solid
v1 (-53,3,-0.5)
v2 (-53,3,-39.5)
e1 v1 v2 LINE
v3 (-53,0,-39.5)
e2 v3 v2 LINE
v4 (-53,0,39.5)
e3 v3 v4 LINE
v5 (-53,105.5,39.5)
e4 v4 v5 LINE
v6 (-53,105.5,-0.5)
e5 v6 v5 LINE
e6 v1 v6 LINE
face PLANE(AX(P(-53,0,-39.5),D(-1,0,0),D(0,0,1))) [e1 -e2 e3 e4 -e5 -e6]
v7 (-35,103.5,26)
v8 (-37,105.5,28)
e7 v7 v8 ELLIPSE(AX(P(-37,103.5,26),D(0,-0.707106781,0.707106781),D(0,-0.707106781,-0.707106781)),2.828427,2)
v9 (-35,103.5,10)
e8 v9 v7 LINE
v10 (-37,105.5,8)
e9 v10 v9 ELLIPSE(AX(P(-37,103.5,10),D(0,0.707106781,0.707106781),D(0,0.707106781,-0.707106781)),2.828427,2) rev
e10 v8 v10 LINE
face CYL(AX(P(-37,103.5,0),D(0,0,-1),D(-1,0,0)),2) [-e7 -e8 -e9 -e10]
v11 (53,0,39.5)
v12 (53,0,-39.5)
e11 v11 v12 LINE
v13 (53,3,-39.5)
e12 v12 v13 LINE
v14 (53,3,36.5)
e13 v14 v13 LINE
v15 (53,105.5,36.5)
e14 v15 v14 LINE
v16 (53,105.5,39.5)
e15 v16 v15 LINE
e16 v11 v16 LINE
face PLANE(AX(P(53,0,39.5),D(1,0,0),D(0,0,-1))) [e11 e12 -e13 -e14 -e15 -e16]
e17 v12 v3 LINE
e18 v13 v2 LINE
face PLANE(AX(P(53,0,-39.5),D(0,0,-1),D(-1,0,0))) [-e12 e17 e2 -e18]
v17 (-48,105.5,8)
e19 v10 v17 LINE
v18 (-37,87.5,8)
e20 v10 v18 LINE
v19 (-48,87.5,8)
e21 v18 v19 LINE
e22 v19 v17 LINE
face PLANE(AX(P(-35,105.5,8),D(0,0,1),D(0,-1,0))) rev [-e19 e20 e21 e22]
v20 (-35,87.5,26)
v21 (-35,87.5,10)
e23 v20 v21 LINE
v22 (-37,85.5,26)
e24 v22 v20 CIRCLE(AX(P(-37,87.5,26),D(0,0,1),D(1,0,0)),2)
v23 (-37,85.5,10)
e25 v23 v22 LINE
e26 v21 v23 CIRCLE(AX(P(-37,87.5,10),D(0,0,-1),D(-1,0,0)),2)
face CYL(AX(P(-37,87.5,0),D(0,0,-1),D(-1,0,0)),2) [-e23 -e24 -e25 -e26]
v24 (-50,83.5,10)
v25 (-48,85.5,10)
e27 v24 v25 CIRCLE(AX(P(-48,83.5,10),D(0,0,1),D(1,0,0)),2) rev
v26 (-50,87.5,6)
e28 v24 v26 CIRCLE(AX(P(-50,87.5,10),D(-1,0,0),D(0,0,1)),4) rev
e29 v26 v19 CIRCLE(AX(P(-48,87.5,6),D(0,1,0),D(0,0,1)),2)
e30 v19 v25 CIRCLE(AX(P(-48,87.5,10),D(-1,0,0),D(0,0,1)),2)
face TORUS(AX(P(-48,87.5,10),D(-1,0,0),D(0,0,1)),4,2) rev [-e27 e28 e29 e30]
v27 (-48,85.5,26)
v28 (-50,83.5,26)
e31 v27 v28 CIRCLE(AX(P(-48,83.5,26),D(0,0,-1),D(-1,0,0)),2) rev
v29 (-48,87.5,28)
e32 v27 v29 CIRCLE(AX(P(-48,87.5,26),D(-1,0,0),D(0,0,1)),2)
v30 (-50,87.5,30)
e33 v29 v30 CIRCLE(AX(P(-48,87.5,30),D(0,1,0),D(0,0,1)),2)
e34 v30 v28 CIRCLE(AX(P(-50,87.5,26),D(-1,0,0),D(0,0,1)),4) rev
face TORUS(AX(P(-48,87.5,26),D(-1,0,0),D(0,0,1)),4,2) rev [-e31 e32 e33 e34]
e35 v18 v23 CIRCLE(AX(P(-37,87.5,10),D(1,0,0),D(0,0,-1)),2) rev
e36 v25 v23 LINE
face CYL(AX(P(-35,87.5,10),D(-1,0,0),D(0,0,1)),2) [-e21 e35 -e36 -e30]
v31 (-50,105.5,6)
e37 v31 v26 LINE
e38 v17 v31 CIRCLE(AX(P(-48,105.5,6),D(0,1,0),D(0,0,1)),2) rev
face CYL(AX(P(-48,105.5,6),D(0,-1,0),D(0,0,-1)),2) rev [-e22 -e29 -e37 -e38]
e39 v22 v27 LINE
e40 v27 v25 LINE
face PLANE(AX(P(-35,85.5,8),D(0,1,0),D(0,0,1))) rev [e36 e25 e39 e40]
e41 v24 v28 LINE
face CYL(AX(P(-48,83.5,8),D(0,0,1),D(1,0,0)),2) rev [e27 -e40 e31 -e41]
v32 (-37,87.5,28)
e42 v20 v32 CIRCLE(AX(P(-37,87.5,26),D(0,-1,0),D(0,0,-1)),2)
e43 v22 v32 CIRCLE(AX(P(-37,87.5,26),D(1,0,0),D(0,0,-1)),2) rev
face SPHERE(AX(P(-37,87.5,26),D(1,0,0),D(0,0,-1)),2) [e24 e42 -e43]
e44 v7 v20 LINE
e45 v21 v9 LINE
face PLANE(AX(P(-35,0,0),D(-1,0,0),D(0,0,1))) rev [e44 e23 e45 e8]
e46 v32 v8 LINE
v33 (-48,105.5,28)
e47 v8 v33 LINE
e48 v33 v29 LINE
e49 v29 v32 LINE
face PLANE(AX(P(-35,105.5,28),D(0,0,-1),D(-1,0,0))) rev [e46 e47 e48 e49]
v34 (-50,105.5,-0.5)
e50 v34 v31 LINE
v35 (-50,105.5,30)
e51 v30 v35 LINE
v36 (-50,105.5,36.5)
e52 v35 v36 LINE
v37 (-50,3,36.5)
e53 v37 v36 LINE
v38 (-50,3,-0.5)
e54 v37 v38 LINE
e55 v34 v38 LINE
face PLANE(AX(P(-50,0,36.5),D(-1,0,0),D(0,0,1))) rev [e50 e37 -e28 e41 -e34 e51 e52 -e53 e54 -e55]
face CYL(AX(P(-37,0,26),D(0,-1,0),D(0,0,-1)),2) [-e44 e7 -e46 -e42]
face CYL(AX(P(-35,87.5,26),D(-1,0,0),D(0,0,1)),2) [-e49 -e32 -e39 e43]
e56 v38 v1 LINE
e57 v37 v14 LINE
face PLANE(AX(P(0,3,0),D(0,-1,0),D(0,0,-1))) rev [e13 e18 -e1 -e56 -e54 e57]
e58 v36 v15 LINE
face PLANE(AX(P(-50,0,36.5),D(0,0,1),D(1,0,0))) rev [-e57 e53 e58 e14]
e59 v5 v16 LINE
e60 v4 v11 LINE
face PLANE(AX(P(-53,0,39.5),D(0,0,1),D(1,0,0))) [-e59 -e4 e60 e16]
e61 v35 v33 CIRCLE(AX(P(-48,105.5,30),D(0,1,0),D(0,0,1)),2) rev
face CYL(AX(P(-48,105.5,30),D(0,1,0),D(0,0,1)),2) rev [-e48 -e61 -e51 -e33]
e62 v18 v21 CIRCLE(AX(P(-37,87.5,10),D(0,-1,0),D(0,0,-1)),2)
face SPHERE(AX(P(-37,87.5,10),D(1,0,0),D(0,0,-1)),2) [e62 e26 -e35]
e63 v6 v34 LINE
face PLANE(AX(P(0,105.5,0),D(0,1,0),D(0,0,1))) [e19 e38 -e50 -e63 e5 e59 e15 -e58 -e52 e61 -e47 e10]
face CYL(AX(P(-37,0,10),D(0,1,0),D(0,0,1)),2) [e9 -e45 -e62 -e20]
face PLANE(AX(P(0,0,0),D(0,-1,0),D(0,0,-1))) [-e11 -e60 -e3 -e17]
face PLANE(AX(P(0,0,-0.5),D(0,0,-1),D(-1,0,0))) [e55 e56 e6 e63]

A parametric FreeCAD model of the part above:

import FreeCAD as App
import Part
import Sketcher
from FreeCAD import Vector
Q = App.Units.Quantity


def edges_at(feature, points):
    """Names of the edges that pass closest to the given points."""
    edges = feature.Shape.Edges
    near = lambda p: min(range(len(edges)), key=lambda i: edges[i].distToShape(Part.Vertex(*p))[0])
    return sorted({f"Edge{near(p) + 1}" for p in points})

doc = App.newDocument("Part")
body = doc.addObject("PartDesign::Body", "Body")

sketch1 = body.newObject("Sketcher::SketchObject", "Sketch")
sketch1.AttachmentSupport = (doc.getObject("XZ_Plane"), [""])
sketch1.MapMode = "FlatFace"
sketch1.addGeometry(Part.LineSegment(Vector(-50, -36, 0), Vector(-50, 36, 0)), False)
sketch1.addGeometry(Part.LineSegment(Vector(-50, 36, 0), Vector(50, 36, 0)), False)
sketch1.addGeometry(Part.LineSegment(Vector(50, 36, 0), Vector(50, -36, 0)), False)
sketch1.addGeometry(Part.LineSegment(Vector(50, -36, 0), Vector(-50, -36, 0)), False)
sketch1.addConstraint(Sketcher.Constraint("Coincident", 0, 2, 1, 1))
sketch1.addConstraint(Sketcher.Constraint("Coincident", 1, 2, 2, 1))
sketch1.addConstraint(Sketcher.Constraint("Coincident", 2, 2, 3, 1))
sketch1.addConstraint(Sketcher.Constraint("Coincident", 3, 2, 0, 1))
sketch1.addConstraint(Sketcher.Constraint("Vertical", 0))
sketch1.addConstraint(Sketcher.Constraint("Horizontal", 1))
sketch1.addConstraint(Sketcher.Constraint("Vertical", 2))
sketch1.addConstraint(Sketcher.Constraint("Horizontal", 3))
sketch1.addConstraint(Sketcher.Constraint("Symmetric", 0, 2, 2, 2, -1, 1))
sketch1.addConstraint(Sketcher.Constraint("DistanceX", 1, 1, 1, 2, Q("100 mm")))
sketch1.addConstraint(Sketcher.Constraint("DistanceY", 0, 1, 0, 2, Q("73 mm")))
pad1 = body.newObject("PartDesign::Pad", "Pad")
pad1.Profile = sketch1
pad1.Length = 3
pad1.Reversed = True

sketch2 = body.newObject("Sketcher::SketchObject", "Sketch001")
sketch2.AttachmentSupport = (doc.getObject("XZ_Plane"), [""])
sketch2.MapMode = "FlatFace"
sketch2.AttachmentOffset = App.Placement(Vector(0, 0, -3), App.Rotation())
sketch2.addGeometry(Part.LineSegment(Vector(-53, -40, 0), Vector(-53, 40, 0)), False)
sketch2.addGeometry(Part.LineSegment(Vector(-53, 40, 0), Vector(53, 40, 0)), False)
sketch2.addGeometry(Part.LineSegment(Vector(53, 40, 0), Vector(53, -40, 0)), False)
sketch2.addGeometry(Part.LineSegment(Vector(53, -40, 0), Vector(-53, -40, 0)), False)
sketch2.addGeometry(Part.LineSegment(Vector(50, 36, 0), Vector(-50, 36, 0)), False)
sketch2.addGeometry(Part.LineSegment(Vector(-50, 36, 0), Vector(-50, -36, 0)), False)
sketch2.addGeometry(Part.LineSegment(Vector(-50, -36, 0), Vector(50, -36, 0)), False)
sketch2.addGeometry(Part.LineSegment(Vector(50, -36, 0), Vector(50, 36, 0)), False)
sketch2.addConstraint(Sketcher.Constraint("Coincident", 0, 2, 1, 1))
sketch2.addConstraint(Sketcher.Constraint("Coincident", 1, 2, 2, 1))
sketch2.addConstraint(Sketcher.Constraint("Coincident", 2, 2, 3, 1))
sketch2.addConstraint(Sketcher.Constraint("Coincident", 3, 2, 0, 1))
sketch2.addConstraint(Sketcher.Constraint("Coincident", 4, 2, 5, 1))
sketch2.addConstraint(Sketcher.Constraint("Coincident", 5, 2, 6, 1))
sketch2.addConstraint(Sketcher.Constraint("Coincident", 6, 2, 7, 1))
sketch2.addConstraint(Sketcher.Constraint("Coincident", 7, 2, 4, 1))
sketch2.addConstraint(Sketcher.Constraint("Vertical", 0))
sketch2.addConstraint(Sketcher.Constraint("Horizontal", 1))
sketch2.addConstraint(Sketcher.Constraint("Vertical", 2))
sketch2.addConstraint(Sketcher.Constraint("Horizontal", 3))
sketch2.addConstraint(Sketcher.Constraint("Horizontal", 4))
sketch2.addConstraint(Sketcher.Constraint("Vertical", 5))
sketch2.addConstraint(Sketcher.Constraint("Horizontal", 6))
sketch2.addConstraint(Sketcher.Constraint("Vertical", 7))
sketch2.addConstraint(Sketcher.Constraint("Symmetric", 0, 2, 2, 2, -1, 1))
sketch2.addConstraint(Sketcher.Constraint("Symmetric", 4, 2, 6, 2, -1, 1))
sketch2.addConstraint(Sketcher.Constraint("DistanceX", 1, 1, 1, 2, Q("106 mm")))
sketch2.addConstraint(Sketcher.Constraint("DistanceX", 4, 2, 4, 1, Q("100 mm")))
sketch2.addConstraint(Sketcher.Constraint("DistanceY", 0, 1, 0, 2, Q("79 mm")))
sketch2.addConstraint(Sketcher.Constraint("DistanceY", 5, 2, 5, 1, Q("73 mm")))
pad2 = body.newObject("PartDesign::Pad", "Pad001")
pad2.Profile = sketch2
pad2.Type = "TwoLengths"
pad2.Length = 102.5
pad2.Length2 = 3
pad2.Reversed = True

sketch3 = body.newObject("Sketcher::SketchObject", "Sketch002")
sketch3.AttachmentSupport = (doc.getObject("XY_Plane"), [""])
sketch3.MapMode = "FlatFace"
sketch3.AttachmentOffset = App.Placement(Vector(0, 0, -39.5), App.Rotation())
sketch3.addGeometry(Part.LineSegment(Vector(53, 106, 0), Vector(53, 3, 0)), False)
sketch3.addGeometry(Part.LineSegment(Vector(53, 3, 0), Vector(-53, 3, 0)), False)
sketch3.addGeometry(Part.LineSegment(Vector(-53, 3, 0), Vector(-53, 106, 0)), False)
sketch3.addGeometry(Part.LineSegment(Vector(-53, 106, 0), Vector(53, 106, 0)), False)
sketch3.addConstraint(Sketcher.Constraint("Coincident", 0, 2, 1, 1))
sketch3.addConstraint(Sketcher.Constraint("Coincident", 1, 2, 2, 1))
sketch3.addConstraint(Sketcher.Constraint("Coincident", 2, 2, 3, 1))
sketch3.addConstraint(Sketcher.Constraint("Coincident", 3, 2, 0, 1))
sketch3.addConstraint(Sketcher.Constraint("Vertical", 0))
sketch3.addConstraint(Sketcher.Constraint("Horizontal", 1))
sketch3.addConstraint(Sketcher.Constraint("Vertical", 2))
sketch3.addConstraint(Sketcher.Constraint("Horizontal", 3))
sketch3.addConstraint(Sketcher.Constraint("DistanceX", 1, 2, 1, 1, Q("106 mm")))
sketch3.addConstraint(Sketcher.Constraint("DistanceY", 0, 2, 0, 1, Q("102.5 mm")))
sketch3.addConstraint(Sketcher.Constraint("DistanceX", -1, 1, 0, 2, Q("53 mm")))
sketch3.addConstraint(Sketcher.Constraint("DistanceY", -1, 1, 0, 2, Q("3 mm")))
pocket1 = body.newObject("PartDesign::Pocket", "Pocket")
pocket1.Profile = sketch3
pocket1.Length = 39
pocket1.Reversed = True

sketch4 = body.newObject("Sketcher::SketchObject", "Sketch003")
sketch4.AttachmentSupport = (doc.getObject("YZ_Plane"), [""])
sketch4.MapMode = "FlatFace"
sketch4.AttachmentOffset = App.Placement(Vector(0, 0, 53), App.Rotation())
sketch4.addGeometry(Part.LineSegment(Vector(106, 36, 0), Vector(3, 36, 0)), False)
sketch4.addGeometry(Part.LineSegment(Vector(3, 36, 0), Vector(3, 0, 0)), False)
sketch4.addGeometry(Part.LineSegment(Vector(3, 0, 0), Vector(106, 0, 0)), False)
sketch4.addGeometry(Part.LineSegment(Vector(106, 0, 0), Vector(106, 36, 0)), False)
sketch4.addConstraint(Sketcher.Constraint("Coincident", 0, 2, 1, 1))
sketch4.addConstraint(Sketcher.Constraint("Coincident", 1, 2, 2, 1))
sketch4.addConstraint(Sketcher.Constraint("Coincident", 2, 2, 3, 1))
sketch4.addConstraint(Sketcher.Constraint("Coincident", 3, 2, 0, 1))
sketch4.addConstraint(Sketcher.Constraint("Horizontal", 0))
sketch4.addConstraint(Sketcher.Constraint("Vertical", 1))
sketch4.addConstraint(Sketcher.Constraint("Horizontal", 2))
sketch4.addConstraint(Sketcher.Constraint("Vertical", 3))
sketch4.addConstraint(Sketcher.Constraint("DistanceY", 1, 2, 1, 1, Q("37 mm")))
sketch4.addConstraint(Sketcher.Constraint("DistanceX", 0, 2, 0, 1, Q("102.5 mm")))
sketch4.addConstraint(Sketcher.Constraint("DistanceX", -1, 1, 0, 2, Q("3 mm")))
sketch4.addConstraint(Sketcher.Constraint("DistanceY", -1, 1, 0, 2, Q("36.5 mm")))
pocket2 = body.newObject("PartDesign::Pocket", "Pocket001")
pocket2.Profile = sketch4
pocket2.Type = "UpToFirst"

sketch5 = body.newObject("Sketcher::SketchObject", "Sketch004")
sketch5.AttachmentSupport = (doc.getObject("YZ_Plane"), [""])
sketch5.MapMode = "FlatFace"
sketch5.AttachmentOffset = App.Placement(Vector(0, 0, -50), App.Rotation())
sketch5.addGeometry(Part.LineSegment(Vector(106, 28, 0), Vector(86, 28, 0)), False)
sketch5.addGeometry(Part.LineSegment(Vector(86, 28, 0), Vector(86, 8, 0)), False)
sketch5.addGeometry(Part.LineSegment(Vector(86, 8, 0), Vector(106, 8, 0)), False)
sketch5.addGeometry(Part.LineSegment(Vector(106, 8, 0), Vector(106, 28, 0)), False)
sketch5.addConstraint(Sketcher.Constraint("Coincident", 0, 2, 1, 1))
sketch5.addConstraint(Sketcher.Constraint("Coincident", 1, 2, 2, 1))
sketch5.addConstraint(Sketcher.Constraint("Coincident", 2, 2, 3, 1))
sketch5.addConstraint(Sketcher.Constraint("Coincident", 3, 2, 0, 1))
sketch5.addConstraint(Sketcher.Constraint("Horizontal", 0))
sketch5.addConstraint(Sketcher.Constraint("Vertical", 1))
sketch5.addConstraint(Sketcher.Constraint("Horizontal", 2))
sketch5.addConstraint(Sketcher.Constraint("Vertical", 3))
sketch5.addConstraint(Sketcher.Constraint("Equal", 2, 1))
sketch5.addConstraint(Sketcher.Constraint("DistanceX", 0, 2, 0, 1, Q("20 mm")))
sketch5.addConstraint(Sketcher.Constraint("DistanceY", -1, 1, 0, 2, Q("28 mm")))
sketch5.addConstraint(Sketcher.Constraint("DistanceX", -1, 1, 0, 2, Q("85.5 mm")))
pad3 = body.newObject("PartDesign::Pad", "Pad002")
pad3.Profile = sketch5
pad3.Length = 15
doc.recompute()

fillet = body.newObject("PartDesign::Fillet", "Fillet")
fillet.Base = (pad3, edges_at(pad3, [
    (-50, 95.5, 8),
    (-42.5, 85.5, 8),
    (-50, 95.5, 28),
    (-50, 85.5, 18),
    (-42.5, 85.5, 28),
    (-35, 95.5, 8),
    (-35, 105.5, 18),
    (-35, 95.5, 28),
    (-35, 85.5, 18),
]))
fillet.Radius = 2

doc.recompute()
